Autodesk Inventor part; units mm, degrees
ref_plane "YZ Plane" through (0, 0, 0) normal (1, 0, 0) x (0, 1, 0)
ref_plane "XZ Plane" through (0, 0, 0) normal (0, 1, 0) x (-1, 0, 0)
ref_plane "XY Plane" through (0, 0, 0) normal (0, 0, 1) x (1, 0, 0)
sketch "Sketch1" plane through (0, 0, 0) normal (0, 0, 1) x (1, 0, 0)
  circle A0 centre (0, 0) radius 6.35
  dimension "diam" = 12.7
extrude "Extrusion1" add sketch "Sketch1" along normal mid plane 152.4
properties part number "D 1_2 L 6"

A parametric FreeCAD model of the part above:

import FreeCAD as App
import Part
import Sketcher
from FreeCAD import Vector
Q = App.Units.Quantity

doc = App.newDocument("Part")
body = doc.addObject("PartDesign::Body", "Body")

sketch1 = body.newObject("Sketcher::SketchObject", "Sketch")
sketch1.AttachmentSupport = (doc.getObject("XY_Plane"), [""])
sketch1.MapMode = "FlatFace"
sketch1.addGeometry(Part.Circle(Vector(0, 0, 0), Vector(0, 0, 1), 6), False)
sketch1.addConstraint(Sketcher.Constraint("Coincident", 0, 3, -1, 1))
sketch1.addConstraint(Sketcher.Constraint("Diameter", 0, Q("0.5 in")))
pad1 = body.newObject("PartDesign::Pad", "Pad")
pad1.Profile = sketch1
pad1.Length = Q("6 in")
pad1.Midplane = True

doc.recompute()
